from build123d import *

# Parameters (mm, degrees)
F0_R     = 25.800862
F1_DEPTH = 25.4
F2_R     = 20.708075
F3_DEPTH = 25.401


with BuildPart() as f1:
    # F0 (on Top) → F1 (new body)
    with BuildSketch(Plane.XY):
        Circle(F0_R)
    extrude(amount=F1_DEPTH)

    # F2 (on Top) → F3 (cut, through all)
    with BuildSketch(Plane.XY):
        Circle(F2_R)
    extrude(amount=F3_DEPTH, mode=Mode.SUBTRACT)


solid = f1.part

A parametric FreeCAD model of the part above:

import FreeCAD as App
import Part
import Sketcher

doc = App.newDocument("Part")
params = doc.addObject("Spreadsheet::Sheet", "Params")
for row, (alias, value) in enumerate([
    ("pad1_length", "1 in"),
], start=1):
    params.set(f"A{row}", alias)
    params.set(f"B{row}", "=" + value)
    params.setAlias(f"B{row}", alias)

body = doc.addObject("PartDesign::Body", "Body")

# Sketch on XY plane
sketch1 = doc.addObject("Sketcher::SketchObject", "Sketch")
body.addObject(sketch1)
sketch1.AttachmentSupport = (doc.XY_Plane, [""])
sketch1.MapMode = "FlatFace"
sketch1.addGeometry(Part.Circle(App.Vector(0, 0, 0), App.Vector(0, 0, 1), 25.800862), False)
sketch1.addConstraint([
    Sketcher.Constraint("Coincident", 0, 3, -1, 1),
    Sketcher.Constraint("Diameter", 0, 51.601724),
])
pad1 = doc.addObject("PartDesign::Pad", "Pad")
body.addObject(pad1)
pad1.Profile = sketch1
pad1.setExpression("Length", "Params.pad1_length")

# Sketch on XY plane
sketch2 = doc.addObject("Sketcher::SketchObject", "Sketch001")
body.addObject(sketch2)
sketch2.AttachmentSupport = (doc.XY_Plane, [""])
sketch2.MapMode = "FlatFace"
sketch2.addGeometry(Part.Circle(App.Vector(0, 0, 0), App.Vector(0, 0, 1), 20.708075), False)
sketch2.addConstraint([
    Sketcher.Constraint("Coincident", 0, 3, -1, 1),
    Sketcher.Constraint("Diameter", 0, 41.41615),
])
pocket1 = doc.addObject("PartDesign::Pocket", "Pocket")
body.addObject(pocket1)
pocket1.Profile = sketch2
pocket1.Type = "ThroughAll"
pocket1.Reversed = True

doc.recompute()
